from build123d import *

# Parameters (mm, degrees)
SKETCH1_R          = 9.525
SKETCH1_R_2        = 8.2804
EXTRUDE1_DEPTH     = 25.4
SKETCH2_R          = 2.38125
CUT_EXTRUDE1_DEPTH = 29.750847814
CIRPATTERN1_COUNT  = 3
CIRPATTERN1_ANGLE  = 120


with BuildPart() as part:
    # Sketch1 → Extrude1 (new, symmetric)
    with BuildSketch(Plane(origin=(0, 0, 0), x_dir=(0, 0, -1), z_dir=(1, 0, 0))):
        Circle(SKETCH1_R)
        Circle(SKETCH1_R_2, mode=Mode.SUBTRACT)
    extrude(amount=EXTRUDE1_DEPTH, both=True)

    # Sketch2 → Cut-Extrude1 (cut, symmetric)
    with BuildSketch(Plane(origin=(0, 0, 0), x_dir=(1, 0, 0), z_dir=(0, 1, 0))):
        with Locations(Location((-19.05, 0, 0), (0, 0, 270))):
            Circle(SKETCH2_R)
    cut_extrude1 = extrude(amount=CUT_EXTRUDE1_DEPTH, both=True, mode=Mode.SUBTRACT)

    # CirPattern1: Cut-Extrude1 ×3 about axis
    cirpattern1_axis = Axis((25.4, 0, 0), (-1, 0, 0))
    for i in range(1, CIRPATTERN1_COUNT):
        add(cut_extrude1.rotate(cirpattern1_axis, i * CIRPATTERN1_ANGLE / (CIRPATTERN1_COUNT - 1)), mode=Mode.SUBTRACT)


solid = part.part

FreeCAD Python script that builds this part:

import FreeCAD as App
import Part
import Sketcher
Q = App.Units.Quantity

doc = App.newDocument("Part")
body = doc.addObject("PartDesign::Body", "Body")

sketch1 = body.newObject("Sketcher::SketchObject", "Sketch")
sketch1.AttachmentSupport = (doc.getObject("YZ_Plane"), [""])
sketch1.MapMode = "FlatFace"
sketch1.addGeometry([
    Part.Circle(App.Vector(0, 0, 0), App.Vector(0, 0, 1), 10),
    Part.Circle(App.Vector(0, 0, 0), App.Vector(0, 0, 1), 8),
], False)
sketch1.addConstraint([
    Sketcher.Constraint("Coincident", 0, 3, -1, 1),
    Sketcher.Constraint("Coincident", 1, 3, -1, 1),
    Sketcher.Constraint("Diameter", 0, Q("0.75 in")),
    Sketcher.Constraint("Diameter", 1, Q("0.652 in")),
])
pad1 = body.newObject("PartDesign::Pad", "Pad")
pad1.Profile = sketch1
pad1.Length = Q("2 in")
pad1.Midplane = True

sketch2 = body.newObject("Sketcher::SketchObject", "Sketch001")
sketch2.AttachmentSupport = (doc.getObject("XZ_Plane"), [""])
sketch2.MapMode = "FlatFace"
sketch2.addGeometry(Part.Circle(App.Vector(-19.1, 0, 0), App.Vector(0, 0, 1), 2.4), False)
sketch2.addConstraint([
    Sketcher.Constraint("PointOnObject", 0, 3, -1),
    Sketcher.Constraint("Diameter", 0, Q("0.1875 in")),
    Sketcher.Constraint("DistanceX", 0, 3, -1, 1, Q("0.75 in")),
])
pocket1 = body.newObject("PartDesign::Pocket", "Pocket")
pocket1.Profile = sketch2
pocket1.Length = 59.501696
pocket1.Midplane = True
doc.recompute()

polarpattern = body.newObject("PartDesign::PolarPattern", "PolarPattern")
polarpattern.Originals = [pocket1]
polarpattern.Axis = (doc.getObject("X_Axis"), [""])
polarpattern.Angle = 120
polarpattern.Occurrences = 3
polarpattern.Reversed = True
body.Tip = polarpattern

doc.recompute()
